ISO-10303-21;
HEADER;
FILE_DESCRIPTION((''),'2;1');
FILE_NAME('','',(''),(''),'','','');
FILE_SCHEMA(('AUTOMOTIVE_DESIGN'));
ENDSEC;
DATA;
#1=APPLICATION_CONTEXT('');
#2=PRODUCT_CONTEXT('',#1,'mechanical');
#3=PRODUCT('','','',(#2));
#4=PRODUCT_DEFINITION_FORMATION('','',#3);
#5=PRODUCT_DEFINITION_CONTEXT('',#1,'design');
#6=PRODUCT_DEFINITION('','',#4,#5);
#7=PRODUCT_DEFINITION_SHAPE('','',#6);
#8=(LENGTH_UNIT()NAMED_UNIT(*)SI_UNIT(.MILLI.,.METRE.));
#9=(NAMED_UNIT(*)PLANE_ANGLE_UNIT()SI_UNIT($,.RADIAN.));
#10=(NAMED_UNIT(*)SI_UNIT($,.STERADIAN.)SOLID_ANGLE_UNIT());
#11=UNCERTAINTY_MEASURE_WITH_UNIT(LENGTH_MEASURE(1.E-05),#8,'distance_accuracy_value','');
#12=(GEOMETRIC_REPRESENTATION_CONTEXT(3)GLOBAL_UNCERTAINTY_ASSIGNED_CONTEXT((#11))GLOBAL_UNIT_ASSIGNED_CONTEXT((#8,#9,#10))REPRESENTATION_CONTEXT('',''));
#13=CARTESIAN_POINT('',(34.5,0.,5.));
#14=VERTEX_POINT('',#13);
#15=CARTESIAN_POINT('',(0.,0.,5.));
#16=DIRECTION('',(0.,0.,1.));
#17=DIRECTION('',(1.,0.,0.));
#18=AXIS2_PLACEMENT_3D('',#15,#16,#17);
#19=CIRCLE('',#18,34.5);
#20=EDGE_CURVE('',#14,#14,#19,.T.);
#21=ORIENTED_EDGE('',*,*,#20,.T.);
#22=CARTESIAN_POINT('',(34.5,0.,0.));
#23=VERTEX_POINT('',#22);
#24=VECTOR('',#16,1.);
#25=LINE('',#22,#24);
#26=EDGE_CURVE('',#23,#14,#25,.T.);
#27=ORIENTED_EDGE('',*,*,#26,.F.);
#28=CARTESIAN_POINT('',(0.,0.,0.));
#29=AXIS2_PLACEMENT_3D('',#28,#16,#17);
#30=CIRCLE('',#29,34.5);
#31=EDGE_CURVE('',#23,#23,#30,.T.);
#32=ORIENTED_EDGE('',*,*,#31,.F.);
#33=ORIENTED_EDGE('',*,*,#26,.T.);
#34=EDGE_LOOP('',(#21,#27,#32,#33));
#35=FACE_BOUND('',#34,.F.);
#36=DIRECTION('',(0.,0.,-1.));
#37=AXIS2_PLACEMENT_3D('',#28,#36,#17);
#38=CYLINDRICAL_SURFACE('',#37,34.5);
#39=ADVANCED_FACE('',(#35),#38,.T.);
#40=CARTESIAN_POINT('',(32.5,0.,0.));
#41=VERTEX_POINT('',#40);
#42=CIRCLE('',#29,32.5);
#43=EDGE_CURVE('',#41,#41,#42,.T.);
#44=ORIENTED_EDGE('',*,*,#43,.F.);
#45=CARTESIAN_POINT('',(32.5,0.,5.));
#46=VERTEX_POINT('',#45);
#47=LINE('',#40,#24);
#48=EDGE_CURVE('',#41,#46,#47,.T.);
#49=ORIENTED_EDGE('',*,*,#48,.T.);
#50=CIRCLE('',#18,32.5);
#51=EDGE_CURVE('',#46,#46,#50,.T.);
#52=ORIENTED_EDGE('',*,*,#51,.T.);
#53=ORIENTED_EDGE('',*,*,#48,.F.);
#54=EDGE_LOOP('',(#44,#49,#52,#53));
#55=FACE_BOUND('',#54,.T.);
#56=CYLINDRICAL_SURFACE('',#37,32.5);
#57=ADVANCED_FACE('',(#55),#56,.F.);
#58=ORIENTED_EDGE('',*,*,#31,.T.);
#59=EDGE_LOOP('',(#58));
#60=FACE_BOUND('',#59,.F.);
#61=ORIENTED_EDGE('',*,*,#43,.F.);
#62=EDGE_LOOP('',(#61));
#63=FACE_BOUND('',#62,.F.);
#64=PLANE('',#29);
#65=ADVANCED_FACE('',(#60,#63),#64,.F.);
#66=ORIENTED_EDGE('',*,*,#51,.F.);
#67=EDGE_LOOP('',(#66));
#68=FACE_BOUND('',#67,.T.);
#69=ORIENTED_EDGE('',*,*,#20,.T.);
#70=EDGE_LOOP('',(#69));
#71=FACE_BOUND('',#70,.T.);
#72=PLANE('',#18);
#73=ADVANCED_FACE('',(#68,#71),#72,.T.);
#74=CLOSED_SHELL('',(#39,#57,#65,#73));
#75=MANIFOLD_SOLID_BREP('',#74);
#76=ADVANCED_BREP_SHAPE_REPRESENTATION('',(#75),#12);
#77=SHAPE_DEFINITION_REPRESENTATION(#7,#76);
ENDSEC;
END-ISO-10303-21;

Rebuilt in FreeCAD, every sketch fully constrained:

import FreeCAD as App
import Part
import Sketcher
from FreeCAD import Vector
Q = App.Units.Quantity

doc = App.newDocument("Part")
params = doc.addObject("Spreadsheet::Sheet", "Params")
for row, (alias, value) in enumerate([
    ("sketch1_diameter", "65 mm"),
    ("sketch1_diameter2", "69 mm"),
    ("pad1_length", "5 mm"),
], start=1):
    params.set(f"A{row}", alias)
    params.set(f"B{row}", "=" + value)
    params.setAlias(f"B{row}", alias)

body = doc.addObject("PartDesign::Body", "Body")

# Sketch on XY plane
sketch1 = doc.addObject("Sketcher::SketchObject", "Sketch")
body.addObject(sketch1)
sketch1.AttachmentSupport = (doc.XY_Plane, [""])
sketch1.MapMode = "FlatFace"
sketch1.addGeometry(Part.Circle(Vector(0, 0, 0), Vector(0, 0, 1), 34), False)
sketch1.addGeometry(Part.Circle(Vector(0, 0, 0), Vector(0, 0, 1), 32), False)
sketch1.addConstraint(Sketcher.Constraint("Coincident", 0, 3, -1, 1))
sketch1.addConstraint(Sketcher.Constraint("Coincident", 1, 3, -1, 1))
sketch1.addConstraint(Sketcher.Constraint("Diameter", 1, Q("65 mm")))
sketch1.addConstraint(Sketcher.Constraint("Diameter", 0, Q("69 mm")))
sketch1.setExpression("Constraints[2]", "Params.sketch1_diameter")
sketch1.setExpression("Constraints[3]", "Params.sketch1_diameter2")
pad1 = doc.addObject("PartDesign::Pad", "Pad")
body.addObject(pad1)
pad1.Profile = sketch1
pad1.setExpression("Length", "Params.pad1_length")

doc.recompute()
